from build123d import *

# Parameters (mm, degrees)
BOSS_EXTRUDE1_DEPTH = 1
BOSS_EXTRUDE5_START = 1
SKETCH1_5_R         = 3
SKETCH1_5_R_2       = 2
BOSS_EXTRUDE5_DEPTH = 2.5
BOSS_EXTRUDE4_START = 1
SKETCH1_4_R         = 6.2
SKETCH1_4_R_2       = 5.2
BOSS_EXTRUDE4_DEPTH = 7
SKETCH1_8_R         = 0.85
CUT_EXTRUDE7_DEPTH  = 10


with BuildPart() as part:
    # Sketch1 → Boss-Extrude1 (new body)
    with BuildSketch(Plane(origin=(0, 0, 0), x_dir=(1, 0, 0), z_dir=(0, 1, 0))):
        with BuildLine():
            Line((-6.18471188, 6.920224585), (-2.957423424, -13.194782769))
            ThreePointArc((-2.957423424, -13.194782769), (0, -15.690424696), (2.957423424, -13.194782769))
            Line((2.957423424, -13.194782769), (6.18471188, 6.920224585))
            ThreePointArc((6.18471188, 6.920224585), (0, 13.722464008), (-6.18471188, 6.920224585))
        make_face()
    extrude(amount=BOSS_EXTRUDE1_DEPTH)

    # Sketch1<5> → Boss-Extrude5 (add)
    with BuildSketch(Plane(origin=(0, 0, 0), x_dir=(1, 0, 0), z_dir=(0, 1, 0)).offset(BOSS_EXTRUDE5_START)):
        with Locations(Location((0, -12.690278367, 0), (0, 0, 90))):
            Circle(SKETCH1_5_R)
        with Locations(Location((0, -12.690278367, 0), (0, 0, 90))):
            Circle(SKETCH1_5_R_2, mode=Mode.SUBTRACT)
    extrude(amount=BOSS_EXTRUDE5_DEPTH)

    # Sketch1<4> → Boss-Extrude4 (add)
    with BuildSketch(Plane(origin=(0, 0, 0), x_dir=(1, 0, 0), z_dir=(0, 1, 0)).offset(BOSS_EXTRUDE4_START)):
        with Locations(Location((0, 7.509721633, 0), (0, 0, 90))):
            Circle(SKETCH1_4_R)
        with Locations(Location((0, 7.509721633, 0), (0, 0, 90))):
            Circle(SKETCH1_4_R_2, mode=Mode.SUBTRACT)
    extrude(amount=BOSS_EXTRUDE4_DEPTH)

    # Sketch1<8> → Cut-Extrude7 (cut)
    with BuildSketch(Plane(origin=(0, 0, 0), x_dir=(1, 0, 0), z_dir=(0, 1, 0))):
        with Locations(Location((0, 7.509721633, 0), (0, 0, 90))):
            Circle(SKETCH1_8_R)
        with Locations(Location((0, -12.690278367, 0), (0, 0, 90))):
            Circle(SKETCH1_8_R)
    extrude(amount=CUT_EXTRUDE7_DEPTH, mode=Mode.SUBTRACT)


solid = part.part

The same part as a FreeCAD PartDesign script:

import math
import FreeCAD as App
import Part
import Sketcher
from FreeCAD import Vector
Q = App.Units.Quantity

doc = App.newDocument("Part")
body = doc.addObject("PartDesign::Body", "Body")

sketch1 = body.newObject("Sketcher::SketchObject", "Sketch")
sketch1.AttachmentSupport = (doc.getObject("XZ_Plane"), [""])
sketch1.MapMode = "FlatFace"
sketch1.addGeometry(Part.LineSegment(Vector(-6.184712, -6.920225, 0), Vector(-2.957423, 13.194783, 0)), False)
sketch1.addGeometry(Part.ArcOfCircle(Part.Circle(Vector(0, 12.690278, 0), Vector(0, 0, 1), 3.000146), math.radians(9.680851), math.radians(170.319149)), False)
sketch1.addGeometry(Part.LineSegment(Vector(2.957423, 13.194783, 0), Vector(6.184712, -6.920225, 0)), False)
sketch1.addGeometry(Part.ArcOfCircle(Part.Circle(Vector(0, -7.509722, 0), Vector(0, 0, 1), 6.212742), math.radians(174.55529), math.radians(365.44471)), False)
sketch1.addConstraint(Sketcher.Constraint("Coincident", 0, 2, 1, 2))
sketch1.addConstraint(Sketcher.Constraint("Coincident", 1, 1, 2, 1))
sketch1.addConstraint(Sketcher.Constraint("Coincident", 2, 2, 3, 2))
sketch1.addConstraint(Sketcher.Constraint("Coincident", 3, 1, 0, 1))
sketch1.addConstraint(Sketcher.Constraint("Symmetric", 0, 2, 1, 1, -2))
sketch1.addConstraint(Sketcher.Constraint("Symmetric", 2, 2, 3, 1, -2))
sketch1.addConstraint(Sketcher.Constraint("DistanceY", 3, 3, 1, 3, Q("20.2 mm")))
sketch1.addConstraint(Sketcher.Constraint("Radius", 1, Q("3.000146 mm")))
sketch1.addConstraint(Sketcher.Constraint("Radius", 3, Q("6.212742 mm")))
sketch1.addConstraint(Sketcher.Constraint("Distance", 0, Q("20.372258 mm")))
sketch1.addConstraint(Sketcher.Constraint("DistanceY", -1, 1, 1, 3, Q("12.690278 mm")))
sketch1.addConstraint(Sketcher.Constraint("DistanceX", -1, 1, 2, 2, Q("6.184712 mm")))
pad1 = body.newObject("PartDesign::Pad", "Pad")
pad1.Profile = sketch1
pad1.Length = 1
pad1.Reversed = True

sketch2 = body.newObject("Sketcher::SketchObject", "Sketch001")
sketch2.AttachmentSupport = (doc.getObject("XZ_Plane"), [""])
sketch2.MapMode = "FlatFace"
sketch2.AttachmentOffset = App.Placement(Vector(0, 0, -1), App.Rotation())
sketch2.addGeometry(Part.Circle(Vector(0, 12.690278, 0), Vector(0, 0, 1), 3), False)
sketch2.addGeometry(Part.Circle(Vector(0, 12.690278, 0), Vector(0, 0, 1), 2), False)
sketch2.addConstraint(Sketcher.Constraint("Coincident", 1, 3, 0, 3))
sketch2.addConstraint(Sketcher.Constraint("PointOnObject", 0, 3, -2))
sketch2.addConstraint(Sketcher.Constraint("Diameter", 0, Q("6 mm")))
sketch2.addConstraint(Sketcher.Constraint("Diameter", 1, Q("4 mm")))
sketch2.addConstraint(Sketcher.Constraint("DistanceY", -1, 1, 0, 3, Q("12.690278 mm")))
pad2 = body.newObject("PartDesign::Pad", "Pad001")
pad2.Profile = sketch2
pad2.Length = 2.5
pad2.Reversed = True

sketch3 = body.newObject("Sketcher::SketchObject", "Sketch002")
sketch3.AttachmentSupport = (doc.getObject("XZ_Plane"), [""])
sketch3.MapMode = "FlatFace"
sketch3.AttachmentOffset = App.Placement(Vector(0, 0, -1), App.Rotation())
sketch3.addGeometry(Part.Circle(Vector(0, -7.509722, 0), Vector(0, 0, 1), 6.2), False)
sketch3.addGeometry(Part.Circle(Vector(0, -7.509722, 0), Vector(0, 0, 1), 5.2), False)
sketch3.addConstraint(Sketcher.Constraint("Coincident", 1, 3, 0, 3))
sketch3.addConstraint(Sketcher.Constraint("PointOnObject", 0, 3, -2))
sketch3.addConstraint(Sketcher.Constraint("Diameter", 0, Q("12.4 mm")))
sketch3.addConstraint(Sketcher.Constraint("Diameter", 1, Q("10.4 mm")))
sketch3.addConstraint(Sketcher.Constraint("DistanceY", 0, 3, -1, 1, Q("7.509722 mm")))
pad3 = body.newObject("PartDesign::Pad", "Pad002")
pad3.Profile = sketch3
pad3.Length = 7
pad3.Reversed = True

sketch4 = body.newObject("Sketcher::SketchObject", "Sketch003")
sketch4.AttachmentSupport = (doc.getObject("XZ_Plane"), [""])
sketch4.MapMode = "FlatFace"
sketch4.addGeometry(Part.Circle(Vector(0, -7.509722, 0), Vector(0, 0, 1), 0.85), False)
sketch4.addGeometry(Part.Circle(Vector(0, 12.690278, 0), Vector(0, 0, 1), 0.85), False)
sketch4.addConstraint(Sketcher.Constraint("Equal", 0, 1))
sketch4.addConstraint(Sketcher.Constraint("PointOnObject", 0, 3, -2))
sketch4.addConstraint(Sketcher.Constraint("PointOnObject", 1, 3, -2))
sketch4.addConstraint(Sketcher.Constraint("Diameter", 0, Q("1.7 mm")))
sketch4.addConstraint(Sketcher.Constraint("DistanceY", 0, 3, 1, 3, Q("20.2 mm")))
sketch4.addConstraint(Sketcher.Constraint("DistanceY", 0, 3, -1, 1, Q("7.509722 mm")))
pocket1 = body.newObject("PartDesign::Pocket", "Pocket")
pocket1.Profile = sketch4
pocket1.Length = 10

doc.recompute()
